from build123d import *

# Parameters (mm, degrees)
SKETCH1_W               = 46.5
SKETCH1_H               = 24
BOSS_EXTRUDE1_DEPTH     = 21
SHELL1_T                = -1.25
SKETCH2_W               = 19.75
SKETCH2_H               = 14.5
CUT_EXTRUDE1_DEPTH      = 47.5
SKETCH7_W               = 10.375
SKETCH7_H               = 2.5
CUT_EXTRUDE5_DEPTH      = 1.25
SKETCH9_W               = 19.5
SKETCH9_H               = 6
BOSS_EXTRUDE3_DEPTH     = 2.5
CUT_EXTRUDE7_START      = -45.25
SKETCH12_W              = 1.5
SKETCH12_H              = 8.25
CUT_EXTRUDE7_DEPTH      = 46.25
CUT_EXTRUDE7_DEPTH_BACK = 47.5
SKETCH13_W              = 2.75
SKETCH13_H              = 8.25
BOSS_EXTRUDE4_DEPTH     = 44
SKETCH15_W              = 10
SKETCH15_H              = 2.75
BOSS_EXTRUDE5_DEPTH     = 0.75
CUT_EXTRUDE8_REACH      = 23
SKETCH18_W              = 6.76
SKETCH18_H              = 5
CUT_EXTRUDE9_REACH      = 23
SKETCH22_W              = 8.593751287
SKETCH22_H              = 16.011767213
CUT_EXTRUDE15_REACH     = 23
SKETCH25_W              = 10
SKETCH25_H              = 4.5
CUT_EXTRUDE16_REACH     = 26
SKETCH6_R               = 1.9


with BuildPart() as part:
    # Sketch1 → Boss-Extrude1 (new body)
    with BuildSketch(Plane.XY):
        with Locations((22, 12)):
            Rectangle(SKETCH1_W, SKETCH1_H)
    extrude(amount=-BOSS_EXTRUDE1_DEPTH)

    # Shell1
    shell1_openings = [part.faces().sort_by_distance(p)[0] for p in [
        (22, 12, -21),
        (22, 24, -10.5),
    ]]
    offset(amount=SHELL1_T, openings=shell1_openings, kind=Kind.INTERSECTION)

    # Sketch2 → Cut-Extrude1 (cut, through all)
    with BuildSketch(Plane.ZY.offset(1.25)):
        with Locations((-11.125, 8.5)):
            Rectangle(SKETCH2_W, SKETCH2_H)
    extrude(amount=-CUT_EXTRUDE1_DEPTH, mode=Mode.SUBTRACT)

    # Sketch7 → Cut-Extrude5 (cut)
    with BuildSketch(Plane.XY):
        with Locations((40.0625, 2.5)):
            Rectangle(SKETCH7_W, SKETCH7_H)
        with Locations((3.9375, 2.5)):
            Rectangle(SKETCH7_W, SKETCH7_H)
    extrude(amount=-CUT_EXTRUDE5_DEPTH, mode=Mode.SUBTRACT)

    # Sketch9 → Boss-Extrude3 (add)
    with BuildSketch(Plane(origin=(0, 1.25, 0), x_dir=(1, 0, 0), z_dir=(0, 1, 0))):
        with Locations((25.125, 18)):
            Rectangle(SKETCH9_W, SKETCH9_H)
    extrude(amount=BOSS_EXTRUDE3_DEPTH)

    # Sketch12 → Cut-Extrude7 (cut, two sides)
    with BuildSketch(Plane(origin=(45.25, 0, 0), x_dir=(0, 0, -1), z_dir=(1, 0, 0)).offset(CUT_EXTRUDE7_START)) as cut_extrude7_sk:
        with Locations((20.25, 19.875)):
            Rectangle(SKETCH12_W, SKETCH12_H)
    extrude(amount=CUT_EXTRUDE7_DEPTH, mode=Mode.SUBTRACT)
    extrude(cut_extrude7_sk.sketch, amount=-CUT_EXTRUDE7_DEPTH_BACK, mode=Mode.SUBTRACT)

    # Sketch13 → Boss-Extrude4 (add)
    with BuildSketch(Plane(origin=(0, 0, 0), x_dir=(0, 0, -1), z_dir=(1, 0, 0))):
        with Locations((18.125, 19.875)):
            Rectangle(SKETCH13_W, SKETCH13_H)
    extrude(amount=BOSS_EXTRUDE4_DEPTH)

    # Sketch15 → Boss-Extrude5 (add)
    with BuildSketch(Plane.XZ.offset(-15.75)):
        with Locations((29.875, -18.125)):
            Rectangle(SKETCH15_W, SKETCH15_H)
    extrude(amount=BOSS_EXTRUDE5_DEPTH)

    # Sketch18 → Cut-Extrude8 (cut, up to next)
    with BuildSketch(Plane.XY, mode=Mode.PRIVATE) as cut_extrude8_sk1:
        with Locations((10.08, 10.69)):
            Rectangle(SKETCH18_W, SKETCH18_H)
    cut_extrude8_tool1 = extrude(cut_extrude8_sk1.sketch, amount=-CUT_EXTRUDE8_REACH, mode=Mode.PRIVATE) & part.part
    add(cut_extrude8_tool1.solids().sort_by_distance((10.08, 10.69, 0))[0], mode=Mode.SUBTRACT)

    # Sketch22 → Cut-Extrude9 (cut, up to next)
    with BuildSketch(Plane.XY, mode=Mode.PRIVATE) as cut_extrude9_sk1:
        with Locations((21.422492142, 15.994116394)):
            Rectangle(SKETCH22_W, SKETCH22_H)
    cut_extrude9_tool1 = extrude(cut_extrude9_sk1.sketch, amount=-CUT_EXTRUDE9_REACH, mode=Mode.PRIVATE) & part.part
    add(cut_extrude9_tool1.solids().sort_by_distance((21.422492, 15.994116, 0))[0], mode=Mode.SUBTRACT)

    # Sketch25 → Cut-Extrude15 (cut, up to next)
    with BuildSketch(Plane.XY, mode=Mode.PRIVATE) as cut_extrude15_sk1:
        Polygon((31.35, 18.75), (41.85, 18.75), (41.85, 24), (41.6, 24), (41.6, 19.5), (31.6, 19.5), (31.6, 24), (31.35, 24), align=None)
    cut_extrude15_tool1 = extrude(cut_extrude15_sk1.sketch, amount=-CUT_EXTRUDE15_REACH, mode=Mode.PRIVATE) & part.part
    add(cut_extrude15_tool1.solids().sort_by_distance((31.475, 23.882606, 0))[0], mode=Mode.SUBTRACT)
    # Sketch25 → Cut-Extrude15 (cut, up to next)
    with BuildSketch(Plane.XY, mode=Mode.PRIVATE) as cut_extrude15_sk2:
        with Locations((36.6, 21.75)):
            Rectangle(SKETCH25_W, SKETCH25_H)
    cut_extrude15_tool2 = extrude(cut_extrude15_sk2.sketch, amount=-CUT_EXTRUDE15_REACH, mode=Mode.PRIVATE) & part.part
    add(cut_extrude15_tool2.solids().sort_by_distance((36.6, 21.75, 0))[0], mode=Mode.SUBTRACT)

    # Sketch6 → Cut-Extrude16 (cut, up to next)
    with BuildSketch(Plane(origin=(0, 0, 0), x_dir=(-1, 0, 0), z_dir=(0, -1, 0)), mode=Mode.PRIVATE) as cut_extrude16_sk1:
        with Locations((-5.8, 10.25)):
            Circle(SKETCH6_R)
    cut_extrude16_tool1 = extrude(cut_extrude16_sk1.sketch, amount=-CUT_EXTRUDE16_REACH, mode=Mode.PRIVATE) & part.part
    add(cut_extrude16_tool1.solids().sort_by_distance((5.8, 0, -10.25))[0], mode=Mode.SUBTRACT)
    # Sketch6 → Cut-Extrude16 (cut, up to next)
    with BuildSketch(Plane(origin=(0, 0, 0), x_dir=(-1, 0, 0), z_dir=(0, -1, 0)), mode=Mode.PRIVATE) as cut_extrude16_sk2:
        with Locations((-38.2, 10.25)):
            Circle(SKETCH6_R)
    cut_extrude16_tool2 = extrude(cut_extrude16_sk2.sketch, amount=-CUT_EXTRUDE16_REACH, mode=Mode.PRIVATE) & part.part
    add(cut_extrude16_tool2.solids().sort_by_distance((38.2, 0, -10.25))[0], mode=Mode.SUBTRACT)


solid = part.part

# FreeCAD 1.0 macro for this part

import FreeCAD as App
import Part
import Sketcher

V = App.Vector


def faces_at(feature, points):
    """Names of the faces that lie closest to the given points."""
    faces = feature.Shape.Faces
    near = lambda p: min(range(len(faces)), key=lambda i: faces[i].distToShape(Part.Vertex(*p))[0])
    return sorted({f"Face{near(p) + 1}" for p in points})

doc = App.newDocument("Part")
params = doc.addObject("Spreadsheet::Sheet", "Params")
for row, (alias, value) in enumerate([
    ("sketch1_height", "24 mm"),
    ("sketch1_width", "46.5 mm"),
    ("pad1_length", "21 mm"),
    ("thickness_wall", "1.25 mm"),
    ("sketch2_width", "14.5 mm"),
    ("sketch2_height", "19.75 mm"),
    ("sketch3_height", "2.5 mm"),
    ("pocket2_length", "1.25 mm"),
    ("sketch4_height", "6 mm"),
    ("sketch4_width", "19.5 mm"),
    ("pad2_length", "2.5 mm"),
    ("sketch5_height", "1.5 mm"),
    ("sketch5_width", "8.25 mm"),
    ("sketch6_width", "8.25 mm"),
    ("sketch6_height", "2.75 mm"),
    ("pad3_length", "44 mm"),
    ("sketch7_width", "10 mm"),
    ("sketch7_height", "2.75 mm"),
    ("pad4_length", "0.75 mm"),
    ("sketch8_height", "5 mm"),
    ("sketch8_width", "6.76 mm"),
    ("sketch10_width", "10 mm"),
    ("sketch10_width2", "10.5 mm"),
    ("sketch10_height", "4.5 mm"),
    ("sketch10_height2", "5.25 mm"),
    ("sketch11_width", "10 mm"),
    ("sketch11_height", "4.5 mm"),
    ("sketch12_diameter", "3.8 mm"),
    ("sketch13_diameter", "3.8 mm"),
], start=1):
    params.set(f"A{row}", alias)
    params.set(f"B{row}", "=" + value)
    params.setAlias(f"B{row}", alias)

body = doc.addObject("PartDesign::Body", "Body")
body.AllowCompound = True

sketch1 = doc.addObject("Sketcher::SketchObject", "Sketch")
body.addObject(sketch1)
sketch1.AttachmentSupport = (doc.XY_Plane, [""])
sketch1.MapMode = "FlatFace"
sketch1.addGeometry([
    Part.LineSegment(V(-1.25, 24, 0), V(-1.25, 0, 0)),
    Part.LineSegment(V(-1.25, 0, 0), V(45.25, 0, 0)),
    Part.LineSegment(V(45.25, 0, 0), V(45.25, 24, 0)),
    Part.LineSegment(V(45.25, 24, 0), V(-1.25, 24, 0)),
], False)
sketch1.addConstraint([
    Sketcher.Constraint("Coincident", 0, 2, 1, 1),
    Sketcher.Constraint("Coincident", 1, 2, 2, 1),
    Sketcher.Constraint("Coincident", 2, 2, 3, 1),
    Sketcher.Constraint("Coincident", 3, 2, 0, 1),
    Sketcher.Constraint("Vertical", 0),
    Sketcher.Constraint("Horizontal", 1),
    Sketcher.Constraint("Vertical", 2),
    Sketcher.Constraint("Horizontal", 3),
    Sketcher.Constraint("PointOnObject", 0, 2, -1),
    Sketcher.Constraint("DistanceY", 0, 2, 0, 1, 24.0),
    Sketcher.Constraint("DistanceX", 1, 1, 1, 2, 46.5),
    Sketcher.Constraint("DistanceX", 0, 2, -1, 1, 1.25),
])
sketch1.setExpression("Constraints[9]", "Params.sketch1_height")
sketch1.setExpression("Constraints[10]", "Params.sketch1_width")
pad1 = doc.addObject("PartDesign::Pad", "Pad")
body.addObject(pad1)
pad1.Profile = sketch1
pad1.setExpression("Length", "Params.pad1_length")
pad1.Reversed = True
doc.recompute()

thickness = doc.addObject("PartDesign::Thickness", "Thickness")
body.addObject(thickness)
thickness.Base = (pad1, faces_at(pad1, [(22, 12, -21), (22, 24, -10.5)]))
thickness.setExpression("Value", "Params.thickness_wall")
thickness.Reversed = True
thickness.Join = "Intersection"

sketch2 = doc.addObject("Sketcher::SketchObject", "Sketch001")
body.addObject(sketch2)
sketch2.AttachmentSupport = (doc.YZ_Plane, [""])
sketch2.MapMode = "FlatFace"
sketch2.AttachmentOffset = App.Placement(V(0, 0, -1.25), App.Rotation())
sketch2.addGeometry([
    Part.LineSegment(V(15.75, -21, 0), V(1.25, -21, 0)),
    Part.LineSegment(V(1.25, -21, 0), V(1.25, -1.25, 0)),
    Part.LineSegment(V(1.25, -1.25, 0), V(15.75, -1.25, 0)),
    Part.LineSegment(V(15.75, -1.25, 0), V(15.75, -21, 0)),
], False)
sketch2.addConstraint([
    Sketcher.Constraint("Coincident", 0, 2, 1, 1),
    Sketcher.Constraint("Coincident", 1, 2, 2, 1),
    Sketcher.Constraint("Coincident", 2, 2, 3, 1),
    Sketcher.Constraint("Coincident", 3, 2, 0, 1),
    Sketcher.Constraint("Horizontal", 0),
    Sketcher.Constraint("Vertical", 1),
    Sketcher.Constraint("Horizontal", 2),
    Sketcher.Constraint("Vertical", 3),
    Sketcher.Constraint("DistanceX", 0, 2, 0, 1, 14.5),
    Sketcher.Constraint("DistanceY", 0, 2, -1, 1, 21.0),
    Sketcher.Constraint("DistanceY", 1, 1, 1, 2, 19.75),
    Sketcher.Constraint("DistanceX", -1, 1, 0, 2, 1.25),
])
sketch2.setExpression("Constraints[8]", "Params.sketch2_width")
sketch2.setExpression("Constraints[10]", "Params.sketch2_height")
pocket1 = doc.addObject("PartDesign::Pocket", "Pocket")
body.addObject(pocket1)
pocket1.Profile = sketch2
pocket1.Type = "ThroughAll"
pocket1.Reversed = True

sketch3 = doc.addObject("Sketcher::SketchObject", "Sketch002")
body.addObject(sketch3)
sketch3.AttachmentSupport = (doc.XY_Plane, [""])
sketch3.MapMode = "FlatFace"
sketch3.addGeometry([
    Part.LineSegment(V(34.875, 3.75, 0), V(34.875, 1.25, 0)),
    Part.LineSegment(V(34.875, 1.25, 0), V(45.25, 1.25, 0)),
    Part.LineSegment(V(45.25, 1.25, 0), V(45.25, 3.75, 0)),
    Part.LineSegment(V(45.25, 3.75, 0), V(34.875, 3.75, 0)),
    Part.LineSegment(V(-1.25, 3.75, 0), V(-1.25, 1.25, 0)),
    Part.LineSegment(V(-1.25, 1.25, 0), V(9.125, 1.25, 0)),
    Part.LineSegment(V(9.125, 1.25, 0), V(9.125, 3.75, 0)),
    Part.LineSegment(V(9.125, 3.75, 0), V(-1.25, 3.75, 0)),
], False)
sketch3.addConstraint([
    Sketcher.Constraint("Coincident", 0, 2, 1, 1),
    Sketcher.Constraint("Coincident", 1, 2, 2, 1),
    Sketcher.Constraint("Coincident", 2, 2, 3, 1),
    Sketcher.Constraint("Coincident", 3, 2, 0, 1),
    Sketcher.Constraint("Coincident", 4, 2, 5, 1),
    Sketcher.Constraint("Coincident", 5, 2, 6, 1),
    Sketcher.Constraint("Coincident", 6, 2, 7, 1),
    Sketcher.Constraint("Coincident", 7, 2, 4, 1),
    Sketcher.Constraint("Vertical", 0),
    Sketcher.Constraint("Horizontal", 1),
    Sketcher.Constraint("Vertical", 2),
    Sketcher.Constraint("Horizontal", 3),
    Sketcher.Constraint("Vertical", 4),
    Sketcher.Constraint("Horizontal", 5),
    Sketcher.Constraint("Vertical", 6),
    Sketcher.Constraint("Horizontal", 7),
    Sketcher.Constraint("Horizontal", 1, 2, 4, 2),
    Sketcher.Constraint("Horizontal", 3, 2, 6, 2),
    Sketcher.Constraint("Equal", 3, 5),
    Sketcher.Constraint("DistanceY", 0, 2, 0, 1, 2.5),
    Sketcher.Constraint("DistanceX", 4, 2, 1, 2, 46.5),
    Sketcher.Constraint("DistanceX", 1, 1, 1, 2, 10.375),
    Sketcher.Constraint("DistanceY", -1, 1, 0, 2, 1.25),
    Sketcher.Constraint("DistanceX", -1, 1, 1, 2, 45.25),
])
sketch3.setExpression("Constraints[19]", "Params.sketch3_height")
pocket2 = doc.addObject("PartDesign::Pocket", "Pocket001")
body.addObject(pocket2)
pocket2.Profile = sketch3
pocket2.setExpression("Length", "Params.pocket2_length")

sketch4 = doc.addObject("Sketcher::SketchObject", "Sketch003")
body.addObject(sketch4)
sketch4.AttachmentSupport = (doc.XZ_Plane, [""])
sketch4.MapMode = "FlatFace"
sketch4.AttachmentOffset = App.Placement(V(0, 0, -1.25), App.Rotation())
sketch4.addGeometry([
    Part.LineSegment(V(15.375, -21, 0), V(15.375, -15, 0)),
    Part.LineSegment(V(15.375, -15, 0), V(34.875, -15, 0)),
    Part.LineSegment(V(34.875, -15, 0), V(34.875, -21, 0)),
    Part.LineSegment(V(34.875, -21, 0), V(15.375, -21, 0)),
], False)
sketch4.addConstraint([
    Sketcher.Constraint("Coincident", 0, 2, 1, 1),
    Sketcher.Constraint("Coincident", 1, 2, 2, 1),
    Sketcher.Constraint("Coincident", 2, 2, 3, 1),
    Sketcher.Constraint("Coincident", 3, 2, 0, 1),
    Sketcher.Constraint("Vertical", 0),
    Sketcher.Constraint("Horizontal", 1),
    Sketcher.Constraint("Vertical", 2),
    Sketcher.Constraint("Horizontal", 3),
    Sketcher.Constraint("DistanceY", 0, 1, 0, 2, 6.0),
    Sketcher.Constraint("DistanceX", 1, 1, 1, 2, 19.5),
    Sketcher.Constraint("DistanceY", 0, 2, -1, 1, 15.0),
    Sketcher.Constraint("DistanceX", -1, 1, 0, 2, 15.375),
])
sketch4.setExpression("Constraints[8]", "Params.sketch4_height")
sketch4.setExpression("Constraints[9]", "Params.sketch4_width")
pad2 = doc.addObject("PartDesign::Pad", "Pad001")
body.addObject(pad2)
pad2.Profile = sketch4
pad2.setExpression("Length", "Params.pad2_length")
pad2.Reversed = True

sketch5 = doc.addObject("Sketcher::SketchObject", "Sketch004")
body.addObject(sketch5)
sketch5.AttachmentSupport = (doc.YZ_Plane, [""])
sketch5.MapMode = "FlatFace"
sketch5.addGeometry([
    Part.LineSegment(V(24, -19.5, 0), V(15.75, -19.5, 0)),
    Part.LineSegment(V(15.75, -19.5, 0), V(15.75, -21, 0)),
    Part.LineSegment(V(15.75, -21, 0), V(24, -21, 0)),
    Part.LineSegment(V(24, -21, 0), V(24, -19.5, 0)),
], False)
sketch5.addConstraint([
    Sketcher.Constraint("Coincident", 0, 2, 1, 1),
    Sketcher.Constraint("Coincident", 1, 2, 2, 1),
    Sketcher.Constraint("Coincident", 2, 2, 3, 1),
    Sketcher.Constraint("Coincident", 3, 2, 0, 1),
    Sketcher.Constraint("Horizontal", 0),
    Sketcher.Constraint("Vertical", 1),
    Sketcher.Constraint("Horizontal", 2),
    Sketcher.Constraint("Vertical", 3),
    Sketcher.Constraint("DistanceY", 1, 2, 1, 1, 1.5),
    Sketcher.Constraint("DistanceY", 1, 2, -1, 1, 21.0),
    Sketcher.Constraint("DistanceX", -1, 1, 2, 2, 24.0),
    Sketcher.Constraint("DistanceX", 0, 2, 0, 1, 8.25),
])
sketch5.setExpression("Constraints[8]", "Params.sketch5_height")
sketch5.setExpression("Constraints[11]", "Params.sketch5_width")
pocket3 = doc.addObject("PartDesign::Pocket", "Pocket002")
body.addObject(pocket3)
pocket3.Profile = sketch5
pocket3.Type = "ThroughAll"
pocket3.Midplane = True

sketch6 = doc.addObject("Sketcher::SketchObject", "Sketch005")
body.addObject(sketch6)
sketch6.AttachmentSupport = (doc.YZ_Plane, [""])
sketch6.MapMode = "FlatFace"
sketch6.addGeometry([
    Part.LineSegment(V(24, -16.75, 0), V(15.75, -16.75, 0)),
    Part.LineSegment(V(15.75, -16.75, 0), V(15.75, -19.5, 0)),
    Part.LineSegment(V(15.75, -19.5, 0), V(24, -19.5, 0)),
    Part.LineSegment(V(24, -19.5, 0), V(24, -16.75, 0)),
], False)
sketch6.addConstraint([
    Sketcher.Constraint("Coincident", 0, 2, 1, 1),
    Sketcher.Constraint("Coincident", 1, 2, 2, 1),
    Sketcher.Constraint("Coincident", 2, 2, 3, 1),
    Sketcher.Constraint("Coincident", 3, 2, 0, 1),
    Sketcher.Constraint("Horizontal", 0),
    Sketcher.Constraint("Vertical", 1),
    Sketcher.Constraint("Horizontal", 2),
    Sketcher.Constraint("Vertical", 3),
    Sketcher.Constraint("DistanceX", -1, 1, 2, 2, 24.0),
    Sketcher.Constraint("DistanceX", 0, 2, 0, 1, 8.25),
    Sketcher.Constraint("DistanceY", 1, 2, 1, 1, 2.75),
    Sketcher.Constraint("DistanceY", 1, 2, -1, 1, 19.5),
])
sketch6.setExpression("Constraints[9]", "Params.sketch6_width")
sketch6.setExpression("Constraints[10]", "Params.sketch6_height")
pad3 = doc.addObject("PartDesign::Pad", "Pad002")
body.addObject(pad3)
pad3.Profile = sketch6
pad3.setExpression("Length", "Params.pad3_length")

sketch7 = doc.addObject("Sketcher::SketchObject", "Sketch006")
body.addObject(sketch7)
sketch7.AttachmentSupport = (doc.XZ_Plane, [""])
sketch7.MapMode = "FlatFace"
sketch7.AttachmentOffset = App.Placement(V(0, 0, -15.75), App.Rotation())
sketch7.addGeometry([
    Part.LineSegment(V(24.875, -16.75, 0), V(24.875, -19.5, 0)),
    Part.LineSegment(V(24.875, -19.5, 0), V(34.875, -19.5, 0)),
    Part.LineSegment(V(34.875, -19.5, 0), V(34.875, -16.75, 0)),
    Part.LineSegment(V(34.875, -16.75, 0), V(24.875, -16.75, 0)),
], False)
sketch7.addConstraint([
    Sketcher.Constraint("Coincident", 0, 2, 1, 1),
    Sketcher.Constraint("Coincident", 1, 2, 2, 1),
    Sketcher.Constraint("Coincident", 2, 2, 3, 1),
    Sketcher.Constraint("Coincident", 3, 2, 0, 1),
    Sketcher.Constraint("Vertical", 0),
    Sketcher.Constraint("Horizontal", 1),
    Sketcher.Constraint("Vertical", 2),
    Sketcher.Constraint("Horizontal", 3),
    Sketcher.Constraint("DistanceX", 1, 1, 1, 2, 10.0),
    Sketcher.Constraint("DistanceY", 0, 2, 0, 1, 2.75),
    Sketcher.Constraint("DistanceY", 0, 2, -1, 1, 19.5),
    Sketcher.Constraint("DistanceX", -1, 1, 0, 2, 24.875),
])
sketch7.setExpression("Constraints[8]", "Params.sketch7_width")
sketch7.setExpression("Constraints[9]", "Params.sketch7_height")
pad4 = doc.addObject("PartDesign::Pad", "Pad003")
body.addObject(pad4)
pad4.Profile = sketch7
pad4.setExpression("Length", "Params.pad4_length")

sketch8 = doc.addObject("Sketcher::SketchObject", "Sketch007")
body.addObject(sketch8)
sketch8.AttachmentSupport = (doc.XY_Plane, [""])
sketch8.MapMode = "FlatFace"
sketch8.addGeometry([
    Part.LineSegment(V(6.7, 13.19, 0), V(6.7, 8.19, 0)),
    Part.LineSegment(V(6.7, 8.19, 0), V(13.46, 8.19, 0)),
    Part.LineSegment(V(13.46, 8.19, 0), V(13.46, 13.19, 0)),
    Part.LineSegment(V(13.46, 13.19, 0), V(6.7, 13.19, 0)),
], False)
sketch8.addConstraint([
    Sketcher.Constraint("Coincident", 0, 2, 1, 1),
    Sketcher.Constraint("Coincident", 1, 2, 2, 1),
    Sketcher.Constraint("Coincident", 2, 2, 3, 1),
    Sketcher.Constraint("Coincident", 3, 2, 0, 1),
    Sketcher.Constraint("Vertical", 0),
    Sketcher.Constraint("Horizontal", 1),
    Sketcher.Constraint("Vertical", 2),
    Sketcher.Constraint("Horizontal", 3),
    Sketcher.Constraint("DistanceY", 0, 2, 0, 1, 5.0),
    Sketcher.Constraint("DistanceX", 1, 1, 1, 2, 6.76),
    Sketcher.Constraint("DistanceX", -1, 1, 0, 2, 6.7),
    Sketcher.Constraint("DistanceY", -1, 1, 0, 2, 8.19),
])
sketch8.setExpression("Constraints[8]", "Params.sketch8_height")
sketch8.setExpression("Constraints[9]", "Params.sketch8_width")
pocket4 = doc.addObject("PartDesign::Pocket", "Pocket003")
body.addObject(pocket4)
pocket4.Profile = sketch8
pocket4.Type = "UpToFirst"

sketch9 = doc.addObject("Sketcher::SketchObject", "Sketch008")
body.addObject(sketch9)
sketch9.AttachmentSupport = (doc.XY_Plane, [""])
sketch9.MapMode = "FlatFace"
sketch9.addGeometry([
    Part.LineSegment(V(17.125616, 24, 0), V(17.125616, 7.988233, 0)),
    Part.LineSegment(V(17.125616, 7.988233, 0), V(25.719368, 7.988233, 0)),
    Part.LineSegment(V(25.719368, 7.988233, 0), V(25.719368, 24, 0)),
    Part.LineSegment(V(25.719368, 24, 0), V(17.125616, 24, 0)),
], False)
sketch9.addConstraint([
    Sketcher.Constraint("Coincident", 0, 2, 1, 1),
    Sketcher.Constraint("Coincident", 1, 2, 2, 1),
    Sketcher.Constraint("Coincident", 2, 2, 3, 1),
    Sketcher.Constraint("Coincident", 3, 2, 0, 1),
    Sketcher.Constraint("Vertical", 0),
    Sketcher.Constraint("Horizontal", 1),
    Sketcher.Constraint("Vertical", 2),
    Sketcher.Constraint("Horizontal", 3),
    Sketcher.Constraint("DistanceY", -1, 1, 2, 2, 24.0),
    Sketcher.Constraint("DistanceX", 1, 1, 1, 2, 8.593751),
    Sketcher.Constraint("DistanceY", 0, 2, 0, 1, 16.011767),
    Sketcher.Constraint("DistanceX", -1, 1, 0, 2, 17.125616),
])
pocket5 = doc.addObject("PartDesign::Pocket", "Pocket004")
body.addObject(pocket5)
pocket5.Profile = sketch9
pocket5.Type = "UpToFirst"

sketch10 = doc.addObject("Sketcher::SketchObject", "Sketch009")
body.addObject(sketch10)
sketch10.AttachmentSupport = (doc.XY_Plane, [""])
sketch10.MapMode = "FlatFace"
sketch10.addGeometry([
    Part.LineSegment(V(31.35, 18.75, 0), V(41.85, 18.75, 0)),
    Part.LineSegment(V(41.85, 18.75, 0), V(41.85, 24, 0)),
    Part.LineSegment(V(41.85, 24, 0), V(41.6, 24, 0)),
    Part.LineSegment(V(41.6, 24, 0), V(41.6, 19.5, 0)),
    Part.LineSegment(V(41.6, 19.5, 0), V(31.6, 19.5, 0)),
    Part.LineSegment(V(31.6, 19.5, 0), V(31.6, 24, 0)),
    Part.LineSegment(V(31.6, 24, 0), V(31.35, 24, 0)),
    Part.LineSegment(V(31.35, 24, 0), V(31.35, 18.75, 0)),
], False)
sketch10.addConstraint([
    Sketcher.Constraint("Coincident", 0, 2, 1, 1),
    Sketcher.Constraint("Coincident", 1, 2, 2, 1),
    Sketcher.Constraint("Coincident", 2, 2, 3, 1),
    Sketcher.Constraint("Coincident", 3, 2, 4, 1),
    Sketcher.Constraint("Coincident", 4, 2, 5, 1),
    Sketcher.Constraint("Coincident", 5, 2, 6, 1),
    Sketcher.Constraint("Coincident", 6, 2, 7, 1),
    Sketcher.Constraint("Coincident", 7, 2, 0, 1),
    Sketcher.Constraint("Horizontal", 0),
    Sketcher.Constraint("Vertical", 1),
    Sketcher.Constraint("Horizontal", 2),
    Sketcher.Constraint("Vertical", 3),
    Sketcher.Constraint("Horizontal", 4),
    Sketcher.Constraint("Vertical", 5),
    Sketcher.Constraint("Horizontal", 6),
    Sketcher.Constraint("Vertical", 7),
    Sketcher.Constraint("Horizontal", 2, 2, 5, 2),
    Sketcher.Constraint("Equal", 2, 6),
    Sketcher.Constraint("DistanceX", 4, 2, 4, 1, 10.0),
    Sketcher.Constraint("DistanceX", 0, 1, 0, 2, 10.5),
    Sketcher.Constraint("DistanceY", 3, 2, 3, 1, 4.5),
    Sketcher.Constraint("DistanceY", -1, 1, 1, 2, 24.0),
    Sketcher.Constraint("DistanceY", 1, 1, 1, 2, 5.25),
    Sketcher.Constraint("DistanceX", -1, 1, 2, 2, 41.6),
])
sketch10.setExpression("Constraints[18]", "Params.sketch10_width")
sketch10.setExpression("Constraints[19]", "Params.sketch10_width2")
sketch10.setExpression("Constraints[20]", "Params.sketch10_height")
sketch10.setExpression("Constraints[22]", "Params.sketch10_height2")
pocket6 = doc.addObject("PartDesign::Pocket", "Pocket005")
body.addObject(pocket6)
pocket6.Profile = sketch10
pocket6.Type = "UpToFirst"

sketch11 = doc.addObject("Sketcher::SketchObject", "Sketch010")
body.addObject(sketch11)
sketch11.AttachmentSupport = (doc.XY_Plane, [""])
sketch11.MapMode = "FlatFace"
sketch11.addGeometry([
    Part.LineSegment(V(31.6, 24, 0), V(31.6, 19.5, 0)),
    Part.LineSegment(V(31.6, 19.5, 0), V(41.6, 19.5, 0)),
    Part.LineSegment(V(41.6, 19.5, 0), V(41.6, 24, 0)),
    Part.LineSegment(V(41.6, 24, 0), V(31.6, 24, 0)),
], False)
sketch11.addConstraint([
    Sketcher.Constraint("Coincident", 0, 2, 1, 1),
    Sketcher.Constraint("Coincident", 1, 2, 2, 1),
    Sketcher.Constraint("Coincident", 2, 2, 3, 1),
    Sketcher.Constraint("Coincident", 3, 2, 0, 1),
    Sketcher.Constraint("Vertical", 0),
    Sketcher.Constraint("Horizontal", 1),
    Sketcher.Constraint("Vertical", 2),
    Sketcher.Constraint("Horizontal", 3),
    Sketcher.Constraint("DistanceX", 1, 1, 1, 2, 10.0),
    Sketcher.Constraint("DistanceY", 0, 2, 0, 1, 4.5),
    Sketcher.Constraint("DistanceY", -1, 1, 2, 2, 24.0),
    Sketcher.Constraint("DistanceX", -1, 1, 0, 2, 31.6),
])
sketch11.setExpression("Constraints[8]", "Params.sketch11_width")
sketch11.setExpression("Constraints[9]", "Params.sketch11_height")
pocket7 = doc.addObject("PartDesign::Pocket", "Pocket006")
body.addObject(pocket7)
pocket7.Profile = sketch11
pocket7.Type = "UpToFirst"

sketch12 = doc.addObject("Sketcher::SketchObject", "Sketch011")
body.addObject(sketch12)
sketch12.AttachmentSupport = (doc.XZ_Plane, [""])
sketch12.MapMode = "FlatFace"
sketch12.addGeometry(Part.Circle(V(5.8, -10.25, 0), V(0, 0, 1), 1.9), False)
sketch12.addConstraint([
    Sketcher.Constraint("Diameter", 0, 3.8),
    Sketcher.Constraint("DistanceX", -1, 1, 0, 3, 5.8),
    Sketcher.Constraint("DistanceY", 0, 3, -1, 1, 10.25),
])
sketch12.setExpression("Constraints[0]", "Params.sketch12_diameter")
pocket8 = doc.addObject("PartDesign::Pocket", "Pocket007")
body.addObject(pocket8)
pocket8.Profile = sketch12
pocket8.Type = "UpToFirst"

sketch13 = doc.addObject("Sketcher::SketchObject", "Sketch012")
body.addObject(sketch13)
sketch13.AttachmentSupport = (doc.XZ_Plane, [""])
sketch13.MapMode = "FlatFace"
sketch13.addGeometry(Part.Circle(V(38.2, -10.25, 0), V(0, 0, 1), 1.9), False)
sketch13.addConstraint([
    Sketcher.Constraint("Diameter", 0, 3.8),
    Sketcher.Constraint("DistanceX", -1, 1, 0, 3, 38.2),
    Sketcher.Constraint("DistanceY", 0, 3, -1, 1, 10.25),
])
sketch13.setExpression("Constraints[0]", "Params.sketch13_diameter")
pocket9 = doc.addObject("PartDesign::Pocket", "Pocket008")
body.addObject(pocket9)
pocket9.Profile = sketch13
pocket9.Type = "UpToFirst"

doc.recompute()
